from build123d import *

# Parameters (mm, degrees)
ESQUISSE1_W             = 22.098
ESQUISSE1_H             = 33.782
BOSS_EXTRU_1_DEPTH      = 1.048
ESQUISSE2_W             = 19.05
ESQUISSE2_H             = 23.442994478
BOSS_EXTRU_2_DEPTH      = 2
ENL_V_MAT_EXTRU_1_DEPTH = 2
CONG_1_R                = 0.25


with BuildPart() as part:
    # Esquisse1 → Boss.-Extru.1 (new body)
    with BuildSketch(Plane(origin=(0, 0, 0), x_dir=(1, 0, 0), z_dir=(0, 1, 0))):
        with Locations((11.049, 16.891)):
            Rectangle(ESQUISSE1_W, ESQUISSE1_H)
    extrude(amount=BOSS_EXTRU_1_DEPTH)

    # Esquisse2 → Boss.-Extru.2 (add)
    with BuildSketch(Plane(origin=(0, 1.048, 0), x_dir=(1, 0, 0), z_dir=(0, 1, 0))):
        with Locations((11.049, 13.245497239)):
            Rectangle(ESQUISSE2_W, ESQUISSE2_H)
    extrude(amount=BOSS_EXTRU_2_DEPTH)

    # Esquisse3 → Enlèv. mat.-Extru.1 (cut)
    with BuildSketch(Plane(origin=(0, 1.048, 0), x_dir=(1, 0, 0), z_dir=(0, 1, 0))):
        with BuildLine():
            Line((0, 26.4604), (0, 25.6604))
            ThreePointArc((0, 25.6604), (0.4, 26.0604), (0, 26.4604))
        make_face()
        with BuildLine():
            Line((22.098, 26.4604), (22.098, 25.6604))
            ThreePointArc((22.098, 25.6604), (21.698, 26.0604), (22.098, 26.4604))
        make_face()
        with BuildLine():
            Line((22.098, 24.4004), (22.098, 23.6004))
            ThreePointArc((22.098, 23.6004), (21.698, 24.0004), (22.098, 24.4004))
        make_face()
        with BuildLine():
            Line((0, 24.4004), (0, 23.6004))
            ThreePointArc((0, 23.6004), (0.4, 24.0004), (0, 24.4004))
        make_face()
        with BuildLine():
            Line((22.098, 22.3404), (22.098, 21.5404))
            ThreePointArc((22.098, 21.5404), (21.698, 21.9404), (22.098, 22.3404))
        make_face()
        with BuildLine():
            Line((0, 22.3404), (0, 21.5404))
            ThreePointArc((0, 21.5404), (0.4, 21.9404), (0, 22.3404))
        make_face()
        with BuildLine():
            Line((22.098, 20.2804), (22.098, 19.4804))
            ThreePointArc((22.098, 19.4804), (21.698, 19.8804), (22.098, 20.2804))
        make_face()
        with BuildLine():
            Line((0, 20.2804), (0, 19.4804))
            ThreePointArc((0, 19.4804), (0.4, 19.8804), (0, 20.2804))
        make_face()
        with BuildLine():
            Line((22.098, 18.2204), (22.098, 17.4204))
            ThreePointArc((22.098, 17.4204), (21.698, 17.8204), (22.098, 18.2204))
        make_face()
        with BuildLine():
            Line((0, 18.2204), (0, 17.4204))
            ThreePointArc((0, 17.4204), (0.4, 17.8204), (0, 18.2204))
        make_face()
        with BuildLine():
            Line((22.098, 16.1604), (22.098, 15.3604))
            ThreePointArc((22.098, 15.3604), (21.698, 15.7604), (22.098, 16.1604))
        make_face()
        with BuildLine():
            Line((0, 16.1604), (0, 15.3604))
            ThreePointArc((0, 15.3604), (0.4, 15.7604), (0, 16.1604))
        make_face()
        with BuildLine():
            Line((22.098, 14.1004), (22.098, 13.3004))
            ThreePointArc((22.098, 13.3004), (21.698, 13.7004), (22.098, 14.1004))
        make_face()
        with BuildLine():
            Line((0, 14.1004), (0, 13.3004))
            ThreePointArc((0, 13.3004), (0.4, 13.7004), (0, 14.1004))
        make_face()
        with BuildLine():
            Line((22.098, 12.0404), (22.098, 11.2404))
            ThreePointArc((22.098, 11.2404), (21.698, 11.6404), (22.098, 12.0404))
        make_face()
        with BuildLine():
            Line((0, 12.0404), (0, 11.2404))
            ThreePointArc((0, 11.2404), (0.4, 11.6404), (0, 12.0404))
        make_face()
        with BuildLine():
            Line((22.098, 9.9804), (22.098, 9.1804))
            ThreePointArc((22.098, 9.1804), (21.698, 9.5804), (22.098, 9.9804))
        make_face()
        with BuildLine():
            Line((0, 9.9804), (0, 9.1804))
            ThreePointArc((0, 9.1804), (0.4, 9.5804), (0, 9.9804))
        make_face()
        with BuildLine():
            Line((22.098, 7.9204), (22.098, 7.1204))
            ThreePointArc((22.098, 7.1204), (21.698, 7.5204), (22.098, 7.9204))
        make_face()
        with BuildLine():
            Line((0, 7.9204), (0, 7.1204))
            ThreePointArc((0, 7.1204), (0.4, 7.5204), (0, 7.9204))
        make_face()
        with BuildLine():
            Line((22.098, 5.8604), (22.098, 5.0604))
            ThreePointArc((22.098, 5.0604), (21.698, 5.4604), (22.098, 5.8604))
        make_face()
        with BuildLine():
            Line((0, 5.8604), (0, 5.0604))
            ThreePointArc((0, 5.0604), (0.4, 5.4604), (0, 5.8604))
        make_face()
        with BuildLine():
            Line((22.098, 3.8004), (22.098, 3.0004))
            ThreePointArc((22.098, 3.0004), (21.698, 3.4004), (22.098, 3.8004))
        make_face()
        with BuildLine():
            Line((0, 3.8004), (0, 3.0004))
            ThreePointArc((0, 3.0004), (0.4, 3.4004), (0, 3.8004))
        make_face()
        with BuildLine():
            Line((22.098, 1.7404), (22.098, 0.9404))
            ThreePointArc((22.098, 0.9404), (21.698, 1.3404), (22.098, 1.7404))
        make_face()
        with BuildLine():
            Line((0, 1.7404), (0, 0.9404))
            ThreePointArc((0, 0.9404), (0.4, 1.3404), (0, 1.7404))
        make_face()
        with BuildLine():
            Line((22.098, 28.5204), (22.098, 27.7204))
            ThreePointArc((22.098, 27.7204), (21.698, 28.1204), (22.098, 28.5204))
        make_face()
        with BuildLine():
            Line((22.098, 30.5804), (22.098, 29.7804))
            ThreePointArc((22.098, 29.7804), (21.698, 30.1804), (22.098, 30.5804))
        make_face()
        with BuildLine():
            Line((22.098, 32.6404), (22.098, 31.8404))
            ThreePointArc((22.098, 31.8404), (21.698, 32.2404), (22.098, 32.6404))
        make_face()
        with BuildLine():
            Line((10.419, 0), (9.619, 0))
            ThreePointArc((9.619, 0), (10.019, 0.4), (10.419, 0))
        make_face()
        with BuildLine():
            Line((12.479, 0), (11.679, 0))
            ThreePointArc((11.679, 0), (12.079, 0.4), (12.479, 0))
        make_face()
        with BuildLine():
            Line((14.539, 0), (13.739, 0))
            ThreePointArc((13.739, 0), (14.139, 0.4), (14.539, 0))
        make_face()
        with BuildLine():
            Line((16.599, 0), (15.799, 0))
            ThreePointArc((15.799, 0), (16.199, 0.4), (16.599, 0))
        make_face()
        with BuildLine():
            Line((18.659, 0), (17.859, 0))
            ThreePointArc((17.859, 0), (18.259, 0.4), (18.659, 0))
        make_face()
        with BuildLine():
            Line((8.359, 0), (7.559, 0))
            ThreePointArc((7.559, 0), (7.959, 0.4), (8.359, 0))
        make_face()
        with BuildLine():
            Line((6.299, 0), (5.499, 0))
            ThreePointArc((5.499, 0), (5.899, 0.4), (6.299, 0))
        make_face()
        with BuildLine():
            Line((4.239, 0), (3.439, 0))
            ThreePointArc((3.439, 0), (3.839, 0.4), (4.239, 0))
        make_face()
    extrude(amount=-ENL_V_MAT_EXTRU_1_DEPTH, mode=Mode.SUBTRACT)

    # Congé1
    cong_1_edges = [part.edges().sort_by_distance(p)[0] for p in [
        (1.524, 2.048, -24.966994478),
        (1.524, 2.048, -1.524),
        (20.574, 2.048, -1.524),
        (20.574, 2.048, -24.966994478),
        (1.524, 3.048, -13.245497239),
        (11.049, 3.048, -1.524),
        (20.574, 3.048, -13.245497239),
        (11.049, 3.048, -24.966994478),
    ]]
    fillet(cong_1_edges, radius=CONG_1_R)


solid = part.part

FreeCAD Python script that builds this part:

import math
import FreeCAD as App
import Part
import Sketcher

V = App.Vector
Q = App.Units.Quantity


def edges_at(feature, points):
    """Names of the edges that pass closest to the given points."""
    edges = feature.Shape.Edges
    near = lambda p: min(range(len(edges)), key=lambda i: edges[i].distToShape(Part.Vertex(*p))[0])
    return sorted({f"Edge{near(p) + 1}" for p in points})

doc = App.newDocument("Part")
params = doc.addObject("Spreadsheet::Sheet", "Params")
for row, (alias, value) in enumerate([
    ("sketch1_width", "0.87 in"),
    ("sketch1_height", "1.33 in"),
    ("pad1_length", "1.048 mm"),
    ("sketch2_width", "0.75 in"),
    ("pad2_length", "2 mm"),
    ("pocket1_length", "2 mm"),
    ("fillet_radius", "0.25 mm"),
], start=1):
    params.set(f"A{row}", alias)
    params.set(f"B{row}", "=" + value)
    params.setAlias(f"B{row}", alias)

body = doc.addObject("PartDesign::Body", "Body")

sketch1 = body.newObject("Sketcher::SketchObject", "Sketch")
sketch1.AttachmentSupport = (doc.getObject("XZ_Plane"), [""])
sketch1.MapMode = "FlatFace"
sketch1.addGeometry([
    Part.LineSegment(V(0, -34, 0), V(0, 0, 0)),
    Part.LineSegment(V(0, 0, 0), V(22, 0, 0)),
    Part.LineSegment(V(22, 0, 0), V(22, -34, 0)),
    Part.LineSegment(V(22, -34, 0), V(0, -34, 0)),
], False)
sketch1.addConstraint([
    Sketcher.Constraint("Coincident", 0, 2, 1, 1),
    Sketcher.Constraint("Coincident", 1, 2, 2, 1),
    Sketcher.Constraint("Coincident", 2, 2, 3, 1),
    Sketcher.Constraint("Coincident", 3, 2, 0, 1),
    Sketcher.Constraint("Vertical", 0),
    Sketcher.Constraint("Horizontal", 1),
    Sketcher.Constraint("Vertical", 2),
    Sketcher.Constraint("Horizontal", 3),
    Sketcher.Constraint("Coincident", 0, 2, -1, 1),
    Sketcher.Constraint("DistanceX", 1, 1, 1, 2, Q("0.87 in")),
    Sketcher.Constraint("DistanceY", 0, 1, 0, 2, Q("1.33 in")),
])
sketch1.setExpression("Constraints[9]", "Params.sketch1_width")
sketch1.setExpression("Constraints[10]", "Params.sketch1_height")
pad1 = body.newObject("PartDesign::Pad", "Pad")
pad1.Profile = sketch1
pad1.setExpression("Length", "Params.pad1_length")
pad1.Reversed = True

sketch2 = body.newObject("Sketcher::SketchObject", "Sketch001")
sketch2.AttachmentSupport = (doc.getObject("XZ_Plane"), [""])
sketch2.MapMode = "FlatFace"
sketch2.AttachmentOffset = App.Placement(V(0, 0, -1.048), App.Rotation())
sketch2.addGeometry([
    Part.LineSegment(V(2, -25, 0), V(2, -2, 0)),
    Part.LineSegment(V(2, -2, 0), V(21, -2, 0)),
    Part.LineSegment(V(21, -2, 0), V(21, -25, 0)),
    Part.LineSegment(V(21, -25, 0), V(2, -25, 0)),
], False)
sketch2.addConstraint([
    Sketcher.Constraint("Coincident", 0, 2, 1, 1),
    Sketcher.Constraint("Coincident", 1, 2, 2, 1),
    Sketcher.Constraint("Coincident", 2, 2, 3, 1),
    Sketcher.Constraint("Coincident", 3, 2, 0, 1),
    Sketcher.Constraint("Vertical", 0),
    Sketcher.Constraint("Horizontal", 1),
    Sketcher.Constraint("Vertical", 2),
    Sketcher.Constraint("Horizontal", 3),
    Sketcher.Constraint("DistanceX", 1, 1, 1, 2, Q("0.75 in")),
    Sketcher.Constraint("DistanceX", -1, 1, 0, 2, Q("0.06 in")),
    Sketcher.Constraint("DistanceY", 0, 2, -1, 1, Q("0.06 in")),
    Sketcher.Constraint("DistanceY", 0, 1, 0, 2, 23.442994),
])
sketch2.setExpression("Constraints[8]", "Params.sketch2_width")
pad2 = body.newObject("PartDesign::Pad", "Pad001")
pad2.Profile = sketch2
pad2.setExpression("Length", "Params.pad2_length")
pad2.Reversed = True

sketch3 = body.newObject("Sketcher::SketchObject", "Sketch002")
sketch3.AttachmentSupport = (doc.getObject("XZ_Plane"), [""])
sketch3.MapMode = "FlatFace"
sketch3.AttachmentOffset = App.Placement(V(0, 0, -1.048), App.Rotation())
sketch3.addGeometry([
    Part.LineSegment(V(0, -26.46, 0), V(0, -25.66, 0)),
    Part.ArcOfCircle(Part.Circle(V(0, -26.06, 0), V(0, 0, 1), 0.4), math.radians(-90), math.radians(90)),
    Part.LineSegment(V(22.1, -25.66, 0), V(22.1, -26.46, 0)),
    Part.ArcOfCircle(Part.Circle(V(22.1, -26.06, 0), V(0, 0, 1), 0.4), math.radians(90), math.radians(270)),
    Part.LineSegment(V(22.1, -23.6, 0), V(22.1, -24.4, 0)),
    Part.ArcOfCircle(Part.Circle(V(22.1, -24, 0), V(0, 0, 1), 0.4), math.radians(90), math.radians(270)),
    Part.LineSegment(V(0, -24.4, 0), V(0, -23.6, 0)),
    Part.ArcOfCircle(Part.Circle(V(0, -24, 0), V(0, 0, 1), 0.4), math.radians(-90), math.radians(90)),
    Part.LineSegment(V(22.1, -21.54, 0), V(22.1, -22.34, 0)),
    Part.ArcOfCircle(Part.Circle(V(22.1, -21.94, 0), V(0, 0, 1), 0.4), math.radians(90), math.radians(270)),
    Part.LineSegment(V(0, -22.34, 0), V(0, -21.54, 0)),
    Part.ArcOfCircle(Part.Circle(V(0, -21.94, 0), V(0, 0, 1), 0.4), math.radians(-90), math.radians(90)),
    Part.LineSegment(V(22.1, -19.48, 0), V(22.1, -20.28, 0)),
    Part.ArcOfCircle(Part.Circle(V(22.1, -19.88, 0), V(0, 0, 1), 0.4), math.radians(90), math.radians(270)),
    Part.LineSegment(V(0, -20.28, 0), V(0, -19.48, 0)),
    Part.ArcOfCircle(Part.Circle(V(0, -19.88, 0), V(0, 0, 1), 0.4), math.radians(-90), math.radians(90)),
    Part.LineSegment(V(22.1, -17.42, 0), V(22.1, -18.22, 0)),
    Part.ArcOfCircle(Part.Circle(V(22.1, -17.82, 0), V(0, 0, 1), 0.4), math.radians(90), math.radians(270)),
    Part.LineSegment(V(0, -18.22, 0), V(0, -17.42, 0)),
    Part.ArcOfCircle(Part.Circle(V(0, -17.82, 0), V(0, 0, 1), 0.4), math.radians(-90), math.radians(90)),
    Part.LineSegment(V(22.1, -15.36, 0), V(22.1, -16.16, 0)),
    Part.ArcOfCircle(Part.Circle(V(22.1, -15.76, 0), V(0, 0, 1), 0.4), math.radians(90), math.radians(270)),
    Part.LineSegment(V(0, -16.16, 0), V(0, -15.36, 0)),
    Part.ArcOfCircle(Part.Circle(V(0, -15.76, 0), V(0, 0, 1), 0.4), math.radians(-90), math.radians(90)),
    Part.LineSegment(V(22.1, -13.3, 0), V(22.1, -14.1, 0)),
    Part.ArcOfCircle(Part.Circle(V(22.1, -13.7, 0), V(0, 0, 1), 0.4), math.radians(90), math.radians(270)),
    Part.LineSegment(V(0, -14.1, 0), V(0, -13.3, 0)),
    Part.ArcOfCircle(Part.Circle(V(0, -13.7, 0), V(0, 0, 1), 0.4), math.radians(-90), math.radians(90)),
    Part.LineSegment(V(22.1, -11.24, 0), V(22.1, -12.04, 0)),
    Part.ArcOfCircle(Part.Circle(V(22.1, -11.64, 0), V(0, 0, 1), 0.4), math.radians(90), math.radians(270)),
    Part.LineSegment(V(0, -12.04, 0), V(0, -11.24, 0)),
    Part.ArcOfCircle(Part.Circle(V(0, -11.64, 0), V(0, 0, 1), 0.4), math.radians(-90), math.radians(90)),
    Part.LineSegment(V(22.1, -9.18, 0), V(22.1, -9.98, 0)),
    Part.ArcOfCircle(Part.Circle(V(22.1, -9.58, 0), V(0, 0, 1), 0.4), math.radians(90), math.radians(270)),
    Part.LineSegment(V(0, -9.98, 0), V(0, -9.18, 0)),
    Part.ArcOfCircle(Part.Circle(V(0, -9.58, 0), V(0, 0, 1), 0.4), math.radians(-90), math.radians(90)),
    Part.LineSegment(V(22.1, -7.12, 0), V(22.1, -7.92, 0)),
    Part.ArcOfCircle(Part.Circle(V(22.1, -7.52, 0), V(0, 0, 1), 0.4), math.radians(90), math.radians(270)),
    Part.LineSegment(V(0, -7.92, 0), V(0, -7.12, 0)),
    Part.ArcOfCircle(Part.Circle(V(0, -7.52, 0), V(0, 0, 1), 0.4), math.radians(-90), math.radians(90)),
    Part.LineSegment(V(22.1, -5.06, 0), V(22.1, -5.86, 0)),
    Part.ArcOfCircle(Part.Circle(V(22.1, -5.46, 0), V(0, 0, 1), 0.4), math.radians(90), math.radians(270)),
    Part.LineSegment(V(0, -5.86, 0), V(0, -5.06, 0)),
    Part.ArcOfCircle(Part.Circle(V(0, -5.46, 0), V(0, 0, 1), 0.4), math.radians(-90), math.radians(90)),
    Part.LineSegment(V(22.1, -3, 0), V(22.1, -3.8, 0)),
    Part.ArcOfCircle(Part.Circle(V(22.1, -3.4, 0), V(0, 0, 1), 0.4), math.radians(90), math.radians(270)),
    Part.LineSegment(V(0, -3.8, 0), V(0, -3, 0)),
    Part.ArcOfCircle(Part.Circle(V(0, -3.4, 0), V(0, 0, 1), 0.4), math.radians(-90), math.radians(90)),
    Part.LineSegment(V(22.1, -0.94, 0), V(22.1, -1.74, 0)),
    Part.ArcOfCircle(Part.Circle(V(22.1, -1.34, 0), V(0, 0, 1), 0.4), math.radians(90), math.radians(270)),
    Part.LineSegment(V(0, -1.74, 0), V(0, -0.94, 0)),
    Part.ArcOfCircle(Part.Circle(V(0, -1.34, 0), V(0, 0, 1), 0.4), math.radians(-90), math.radians(90)),
    Part.LineSegment(V(22.1, -27.72, 0), V(22.1, -28.52, 0)),
    Part.ArcOfCircle(Part.Circle(V(22.1, -28.12, 0), V(0, 0, 1), 0.4), math.radians(90), math.radians(270)),
    Part.LineSegment(V(22.1, -29.78, 0), V(22.1, -30.58, 0)),
    Part.ArcOfCircle(Part.Circle(V(22.1, -30.18, 0), V(0, 0, 1), 0.4), math.radians(90), math.radians(270)),
    Part.LineSegment(V(22.1, -31.84, 0), V(22.1, -32.64, 0)),
    Part.ArcOfCircle(Part.Circle(V(22.1, -32.24, 0), V(0, 0, 1), 0.4), math.radians(90), math.radians(270)),
    Part.LineSegment(V(9.62, 0, 0), V(10.42, 0, 0)),
    Part.ArcOfCircle(Part.Circle(V(10.02, 0, 0), V(0, 0, 1), 0.4), math.radians(180), math.radians(360)),
    Part.LineSegment(V(11.68, 0, 0), V(12.48, 0, 0)),
    Part.ArcOfCircle(Part.Circle(V(12.08, 0, 0), V(0, 0, 1), 0.4), math.radians(180), math.radians(360)),
    Part.LineSegment(V(13.74, 0, 0), V(14.54, 0, 0)),
    Part.ArcOfCircle(Part.Circle(V(14.14, 0, 0), V(0, 0, 1), 0.4), math.radians(180), math.radians(360)),
    Part.LineSegment(V(15.8, 0, 0), V(16.6, 0, 0)),
    Part.ArcOfCircle(Part.Circle(V(16.2, 0, 0), V(0, 0, 1), 0.4), math.radians(180), math.radians(360)),
    Part.LineSegment(V(17.86, 0, 0), V(18.66, 0, 0)),
    Part.ArcOfCircle(Part.Circle(V(18.26, 0, 0), V(0, 0, 1), 0.4), math.radians(180), math.radians(360)),
    Part.LineSegment(V(7.56, 0, 0), V(8.36, 0, 0)),
    Part.ArcOfCircle(Part.Circle(V(7.96, 0, 0), V(0, 0, 1), 0.4), math.radians(180), math.radians(360)),
    Part.LineSegment(V(5.5, 0, 0), V(6.3, 0, 0)),
    Part.ArcOfCircle(Part.Circle(V(5.9, 0, 0), V(0, 0, 1), 0.4), math.radians(180), math.radians(360)),
    Part.LineSegment(V(3.44, 0, 0), V(4.24, 0, 0)),
    Part.ArcOfCircle(Part.Circle(V(3.84, 0, 0), V(0, 0, 1), 0.4), math.radians(180), math.radians(360)),
], False)
sketch3.addConstraint([
    Sketcher.Constraint("Coincident", 0, 1, 1, 1),
    Sketcher.Constraint("Coincident", 1, 2, 0, 2),
    Sketcher.Constraint("Coincident", 2, 1, 3, 1),
    Sketcher.Constraint("Coincident", 3, 2, 2, 2),
    Sketcher.Constraint("Coincident", 4, 1, 5, 1),
    Sketcher.Constraint("Coincident", 5, 2, 4, 2),
    Sketcher.Constraint("Coincident", 6, 1, 7, 1),
    Sketcher.Constraint("Coincident", 7, 2, 6, 2),
    Sketcher.Constraint("Coincident", 8, 1, 9, 1),
    Sketcher.Constraint("Coincident", 9, 2, 8, 2),
    Sketcher.Constraint("Coincident", 10, 1, 11, 1),
    Sketcher.Constraint("Coincident", 11, 2, 10, 2),
    Sketcher.Constraint("Coincident", 12, 1, 13, 1),
    Sketcher.Constraint("Coincident", 13, 2, 12, 2),
    Sketcher.Constraint("Coincident", 14, 1, 15, 1),
    Sketcher.Constraint("Coincident", 15, 2, 14, 2),
    Sketcher.Constraint("Coincident", 16, 1, 17, 1),
    Sketcher.Constraint("Coincident", 17, 2, 16, 2),
    Sketcher.Constraint("Coincident", 18, 1, 19, 1),
    Sketcher.Constraint("Coincident", 19, 2, 18, 2),
    Sketcher.Constraint("Coincident", 20, 1, 21, 1),
    Sketcher.Constraint("Coincident", 21, 2, 20, 2),
    Sketcher.Constraint("Coincident", 22, 1, 23, 1),
    Sketcher.Constraint("Coincident", 23, 2, 22, 2),
    Sketcher.Constraint("Coincident", 24, 1, 25, 1),
    Sketcher.Constraint("Coincident", 25, 2, 24, 2),
    Sketcher.Constraint("Coincident", 26, 1, 27, 1),
    Sketcher.Constraint("Coincident", 27, 2, 26, 2),
    Sketcher.Constraint("Coincident", 28, 1, 29, 1),
    Sketcher.Constraint("Coincident", 29, 2, 28, 2),
    Sketcher.Constraint("Coincident", 30, 1, 31, 1),
    Sketcher.Constraint("Coincident", 31, 2, 30, 2),
    Sketcher.Constraint("Coincident", 32, 1, 33, 1),
    Sketcher.Constraint("Coincident", 33, 2, 32, 2),
    Sketcher.Constraint("Coincident", 34, 1, 35, 1),
    Sketcher.Constraint("Coincident", 35, 2, 34, 2),
    Sketcher.Constraint("Coincident", 36, 1, 37, 1),
    Sketcher.Constraint("Coincident", 37, 2, 36, 2),
    Sketcher.Constraint("Coincident", 38, 1, 39, 1),
    Sketcher.Constraint("Coincident", 39, 2, 38, 2),
    Sketcher.Constraint("Coincident", 40, 1, 41, 1),
    Sketcher.Constraint("Coincident", 41, 2, 40, 2),
    Sketcher.Constraint("Coincident", 42, 1, 43, 1),
    Sketcher.Constraint("Coincident", 43, 2, 42, 2),
    Sketcher.Constraint("Coincident", 44, 1, 45, 1),
    Sketcher.Constraint("Coincident", 45, 2, 44, 2),
    Sketcher.Constraint("Coincident", 46, 1, 47, 1),
    Sketcher.Constraint("Coincident", 47, 2, 46, 2),
    Sketcher.Constraint("Coincident", 48, 1, 49, 1),
    Sketcher.Constraint("Coincident", 49, 2, 48, 2),
    Sketcher.Constraint("Coincident", 50, 1, 51, 1),
    Sketcher.Constraint("Coincident", 51, 2, 50, 2),
    Sketcher.Constraint("Coincident", 52, 1, 53, 1),
    Sketcher.Constraint("Coincident", 53, 2, 52, 2),
    Sketcher.Constraint("Coincident", 54, 1, 55, 1),
    Sketcher.Constraint("Coincident", 55, 2, 54, 2),
    Sketcher.Constraint("Coincident", 56, 1, 57, 1),
    Sketcher.Constraint("Coincident", 57, 2, 56, 2),
    Sketcher.Constraint("Coincident", 58, 1, 59, 1),
    Sketcher.Constraint("Coincident", 59, 2, 58, 2),
    Sketcher.Constraint("Coincident", 60, 1, 61, 1),
    Sketcher.Constraint("Coincident", 61, 2, 60, 2),
    Sketcher.Constraint("Coincident", 62, 1, 63, 1),
    Sketcher.Constraint("Coincident", 63, 2, 62, 2),
    Sketcher.Constraint("Coincident", 64, 1, 65, 1),
    Sketcher.Constraint("Coincident", 65, 2, 64, 2),
    Sketcher.Constraint("Coincident", 66, 1, 67, 1),
    Sketcher.Constraint("Coincident", 67, 2, 66, 2),
    Sketcher.Constraint("Coincident", 68, 1, 69, 1),
    Sketcher.Constraint("Coincident", 69, 2, 68, 2),
    Sketcher.Constraint("Coincident", 70, 1, 71, 1),
    Sketcher.Constraint("Coincident", 71, 2, 70, 2),
    Sketcher.Constraint("Coincident", 72, 1, 73, 1),
    Sketcher.Constraint("Coincident", 73, 2, 72, 2),
    Sketcher.Constraint("Vertical", 0),
    Sketcher.Constraint("Vertical", 2),
    Sketcher.Constraint("Vertical", 4),
    Sketcher.Constraint("Vertical", 6),
    Sketcher.Constraint("Vertical", 8),
    Sketcher.Constraint("Vertical", 10),
    Sketcher.Constraint("Vertical", 12),
    Sketcher.Constraint("Vertical", 14),
    Sketcher.Constraint("Vertical", 16),
    Sketcher.Constraint("Vertical", 18),
    Sketcher.Constraint("Vertical", 20),
    Sketcher.Constraint("Vertical", 22),
    Sketcher.Constraint("Vertical", 24),
    Sketcher.Constraint("Vertical", 26),
    Sketcher.Constraint("Vertical", 28),
    Sketcher.Constraint("Vertical", 30),
    Sketcher.Constraint("Vertical", 32),
    Sketcher.Constraint("Vertical", 34),
    Sketcher.Constraint("Vertical", 36),
    Sketcher.Constraint("Vertical", 38),
    Sketcher.Constraint("Vertical", 40),
    Sketcher.Constraint("Vertical", 42),
    Sketcher.Constraint("Vertical", 44),
    Sketcher.Constraint("Vertical", 46),
    Sketcher.Constraint("Vertical", 48),
    Sketcher.Constraint("Vertical", 50),
    Sketcher.Constraint("Vertical", 52),
    Sketcher.Constraint("Vertical", 54),
    Sketcher.Constraint("Vertical", 56),
    Sketcher.Constraint("Horizontal", 58),
    Sketcher.Constraint("Horizontal", 60),
    Sketcher.Constraint("Horizontal", 62),
    Sketcher.Constraint("Horizontal", 64),
    Sketcher.Constraint("Horizontal", 66),
    Sketcher.Constraint("Horizontal", 68),
    Sketcher.Constraint("Horizontal", 70),
    Sketcher.Constraint("Horizontal", 72),
    Sketcher.Constraint("Equal", 1, 3),
    Sketcher.Constraint("Equal", 3, 5),
    Sketcher.Constraint("Equal", 5, 7),
    Sketcher.Constraint("Equal", 7, 9),
    Sketcher.Constraint("Equal", 9, 11),
    Sketcher.Constraint("Equal", 11, 13),
    Sketcher.Constraint("Equal", 13, 15),
    Sketcher.Constraint("Equal", 15, 17),
    Sketcher.Constraint("Equal", 17, 19),
    Sketcher.Constraint("Equal", 19, 21),
    Sketcher.Constraint("Equal", 21, 23),
    Sketcher.Constraint("Equal", 23, 25),
    Sketcher.Constraint("Equal", 25, 27),
    Sketcher.Constraint("Equal", 27, 29),
    Sketcher.Constraint("Equal", 29, 31),
    Sketcher.Constraint("Equal", 31, 33),
    Sketcher.Constraint("Equal", 33, 35),
    Sketcher.Constraint("Equal", 35, 37),
    Sketcher.Constraint("Equal", 37, 39),
    Sketcher.Constraint("Equal", 39, 41),
    Sketcher.Constraint("Equal", 41, 43),
    Sketcher.Constraint("Equal", 43, 45),
    Sketcher.Constraint("Equal", 45, 47),
    Sketcher.Constraint("Equal", 47, 49),
    Sketcher.Constraint("Equal", 49, 51),
    Sketcher.Constraint("Equal", 51, 53),
    Sketcher.Constraint("Equal", 53, 55),
    Sketcher.Constraint("Equal", 55, 57),
    Sketcher.Constraint("Equal", 57, 59),
    Sketcher.Constraint("Equal", 59, 61),
    Sketcher.Constraint("Equal", 61, 63),
    Sketcher.Constraint("Equal", 63, 65),
    Sketcher.Constraint("Equal", 65, 67),
    Sketcher.Constraint("Equal", 67, 69),
    Sketcher.Constraint("Equal", 69, 71),
    Sketcher.Constraint("Equal", 71, 73),
    Sketcher.Constraint("PointOnObject", 1, 3, -2),
    Sketcher.Constraint("PointOnObject", 7, 3, -2),
    Sketcher.Constraint("PointOnObject", 11, 3, -2),
    Sketcher.Constraint("PointOnObject", 15, 3, -2),
    Sketcher.Constraint("PointOnObject", 19, 3, -2),
    Sketcher.Constraint("PointOnObject", 23, 3, -2),
    Sketcher.Constraint("PointOnObject", 27, 3, -2),
    Sketcher.Constraint("PointOnObject", 31, 3, -2),
    Sketcher.Constraint("PointOnObject", 35, 3, -2),
    Sketcher.Constraint("PointOnObject", 39, 3, -2),
    Sketcher.Constraint("PointOnObject", 43, 3, -2),
    Sketcher.Constraint("PointOnObject", 47, 3, -2),
    Sketcher.Constraint("PointOnObject", 51, 3, -2),
    Sketcher.Constraint("PointOnObject", 59, 3, -1),
    Sketcher.Constraint("PointOnObject", 61, 3, -1),
    Sketcher.Constraint("PointOnObject", 63, 3, -1),
    Sketcher.Constraint("PointOnObject", 65, 3, -1),
    Sketcher.Constraint("PointOnObject", 67, 3, -1),
    Sketcher.Constraint("PointOnObject", 69, 3, -1),
    Sketcher.Constraint("PointOnObject", 71, 3, -1),
    Sketcher.Constraint("PointOnObject", 73, 3, -1),
    Sketcher.Constraint("PointOnObject", 0, 1, -2),
    Sketcher.Constraint("PointOnObject", 6, 1, -2),
    Sketcher.Constraint("PointOnObject", 10, 1, -2),
    Sketcher.Constraint("PointOnObject", 14, 1, -2),
    Sketcher.Constraint("PointOnObject", 18, 1, -2),
    Sketcher.Constraint("PointOnObject", 22, 1, -2),
    Sketcher.Constraint("PointOnObject", 26, 1, -2),
    Sketcher.Constraint("PointOnObject", 30, 1, -2),
    Sketcher.Constraint("PointOnObject", 34, 1, -2),
    Sketcher.Constraint("PointOnObject", 38, 1, -2),
    Sketcher.Constraint("PointOnObject", 42, 1, -2),
    Sketcher.Constraint("PointOnObject", 46, 1, -2),
    Sketcher.Constraint("PointOnObject", 50, 1, -2),
    Sketcher.Constraint("PointOnObject", 58, 1, -1),
    Sketcher.Constraint("PointOnObject", 60, 1, -1),
    Sketcher.Constraint("PointOnObject", 62, 1, -1),
    Sketcher.Constraint("PointOnObject", 64, 1, -1),
    Sketcher.Constraint("PointOnObject", 66, 1, -1),
    Sketcher.Constraint("PointOnObject", 68, 1, -1),
    Sketcher.Constraint("PointOnObject", 70, 1, -1),
    Sketcher.Constraint("PointOnObject", 72, 1, -1),
    Sketcher.Constraint("Horizontal", 1, 3, 3, 3),
    Sketcher.Constraint("Horizontal", 5, 3, 7, 3),
    Sketcher.Constraint("Horizontal", 9, 3, 11, 3),
    Sketcher.Constraint("Horizontal", 13, 3, 15, 3),
    Sketcher.Constraint("Horizontal", 17, 3, 19, 3),
    Sketcher.Constraint("Horizontal", 21, 3, 23, 3),
    Sketcher.Constraint("Horizontal", 25, 3, 27, 3),
    Sketcher.Constraint("Horizontal", 29, 3, 31, 3),
    Sketcher.Constraint("Horizontal", 33, 3, 35, 3),
    Sketcher.Constraint("Horizontal", 37, 3, 39, 3),
    Sketcher.Constraint("Horizontal", 41, 3, 43, 3),
    Sketcher.Constraint("Horizontal", 45, 3, 47, 3),
    Sketcher.Constraint("Horizontal", 49, 3, 51, 3),
    Sketcher.Constraint("Vertical", 3, 3, 5, 3),
    Sketcher.Constraint("Vertical", 5, 3, 9, 3),
    Sketcher.Constraint("Vertical", 9, 3, 13, 3),
    Sketcher.Constraint("Vertical", 13, 3, 17, 3),
    Sketcher.Constraint("Vertical", 17, 3, 21, 3),
    Sketcher.Constraint("Vertical", 21, 3, 25, 3),
    Sketcher.Constraint("Vertical", 25, 3, 29, 3),
    Sketcher.Constraint("Vertical", 29, 3, 33, 3),
    Sketcher.Constraint("Vertical", 33, 3, 37, 3),
    Sketcher.Constraint("Vertical", 37, 3, 41, 3),
    Sketcher.Constraint("Vertical", 41, 3, 45, 3),
    Sketcher.Constraint("Vertical", 45, 3, 49, 3),
    Sketcher.Constraint("Vertical", 49, 3, 53, 3),
    Sketcher.Constraint("Vertical", 53, 3, 55, 3),
    Sketcher.Constraint("Vertical", 55, 3, 57, 3),
    Sketcher.Constraint("Vertical", 57, 3, 2, 1),
    Sketcher.Constraint("Vertical", 3, 2, 4, 1),
    Sketcher.Constraint("Vertical", 5, 2, 8, 1),
    Sketcher.Constraint("Vertical", 9, 2, 12, 1),
    Sketcher.Constraint("Vertical", 13, 2, 16, 1),
    Sketcher.Constraint("Vertical", 17, 2, 20, 1),
    Sketcher.Constraint("Vertical", 21, 2, 24, 1),
    Sketcher.Constraint("Vertical", 25, 2, 28, 1),
    Sketcher.Constraint("Vertical", 29, 2, 32, 1),
    Sketcher.Constraint("Vertical", 33, 2, 36, 1),
    Sketcher.Constraint("Vertical", 37, 2, 40, 1),
    Sketcher.Constraint("Vertical", 41, 2, 44, 1),
    Sketcher.Constraint("Vertical", 45, 2, 48, 1),
    Sketcher.Constraint("Vertical", 49, 2, 52, 1),
    Sketcher.Constraint("Vertical", 53, 2, 54, 1),
    Sketcher.Constraint("Vertical", 55, 2, 56, 1),
    Sketcher.Constraint("DistanceX", -1, 1, 3, 3, Q("0.87 in")),
    Sketcher.Constraint("Radius", 1, 0.4),
    Sketcher.Constraint("DistanceY", 1, 3, -1, 1, Q("1.026 in")),
    Sketcher.Constraint("DistanceY", 5, 3, -1, 1, 24.0004),
    Sketcher.Constraint("DistanceY", 9, 3, -1, 1, 21.9404),
    Sketcher.Constraint("DistanceY", 13, 3, -1, 1, 19.8804),
    Sketcher.Constraint("DistanceY", 17, 3, -1, 1, 17.8204),
    Sketcher.Constraint("DistanceY", 21, 3, -1, 1, 15.7604),
    Sketcher.Constraint("DistanceY", 25, 3, -1, 1, 13.7004),
    Sketcher.Constraint("DistanceY", 29, 3, -1, 1, 11.6404),
    Sketcher.Constraint("DistanceY", 33, 3, -1, 1, 9.5804),
    Sketcher.Constraint("DistanceY", 37, 3, -1, 1, 7.5204),
    Sketcher.Constraint("DistanceY", 41, 3, -1, 1, 5.4604),
    Sketcher.Constraint("DistanceY", 45, 3, -1, 1, 3.4004),
    Sketcher.Constraint("DistanceY", 49, 3, -1, 1, 1.3404),
    Sketcher.Constraint("DistanceY", 53, 3, -1, 1, 28.1204),
    Sketcher.Constraint("DistanceY", 55, 3, -1, 1, 30.1804),
    Sketcher.Constraint("DistanceY", 57, 3, -1, 1, 32.2404),
    Sketcher.Constraint("DistanceX", -1, 1, 59, 3, 10.019),
    Sketcher.Constraint("DistanceX", -1, 1, 61, 3, 12.079),
    Sketcher.Constraint("DistanceX", -1, 1, 63, 3, 14.139),
    Sketcher.Constraint("DistanceX", -1, 1, 65, 3, 16.199),
    Sketcher.Constraint("DistanceX", -1, 1, 67, 3, 18.259),
    Sketcher.Constraint("DistanceX", -1, 1, 69, 3, 7.959),
    Sketcher.Constraint("DistanceX", -1, 1, 71, 3, 5.899),
    Sketcher.Constraint("DistanceX", -1, 1, 73, 3, 3.839),
])
pocket1 = body.newObject("PartDesign::Pocket", "Pocket")
pocket1.Profile = sketch3
pocket1.setExpression("Length", "Params.pocket1_length")
pocket1.Reversed = True
doc.recompute()

fillet = body.newObject("PartDesign::Fillet", "Fillet")
fillet.Base = (pocket1, edges_at(pocket1, [
    (1.524, 2.048, -24.967),
    (1.524, 2.048, -1.524),
    (20.574, 2.048, -1.524),
    (20.574, 2.048, -24.967),
    (1.524, 3.048, -13.245),
    (11.049, 3.048, -1.524),
    (20.574, 3.048, -13.245),
    (11.049, 3.048, -24.967),
]))
fillet.setExpression("Radius", "Params.fillet_radius")

doc.recompute()
